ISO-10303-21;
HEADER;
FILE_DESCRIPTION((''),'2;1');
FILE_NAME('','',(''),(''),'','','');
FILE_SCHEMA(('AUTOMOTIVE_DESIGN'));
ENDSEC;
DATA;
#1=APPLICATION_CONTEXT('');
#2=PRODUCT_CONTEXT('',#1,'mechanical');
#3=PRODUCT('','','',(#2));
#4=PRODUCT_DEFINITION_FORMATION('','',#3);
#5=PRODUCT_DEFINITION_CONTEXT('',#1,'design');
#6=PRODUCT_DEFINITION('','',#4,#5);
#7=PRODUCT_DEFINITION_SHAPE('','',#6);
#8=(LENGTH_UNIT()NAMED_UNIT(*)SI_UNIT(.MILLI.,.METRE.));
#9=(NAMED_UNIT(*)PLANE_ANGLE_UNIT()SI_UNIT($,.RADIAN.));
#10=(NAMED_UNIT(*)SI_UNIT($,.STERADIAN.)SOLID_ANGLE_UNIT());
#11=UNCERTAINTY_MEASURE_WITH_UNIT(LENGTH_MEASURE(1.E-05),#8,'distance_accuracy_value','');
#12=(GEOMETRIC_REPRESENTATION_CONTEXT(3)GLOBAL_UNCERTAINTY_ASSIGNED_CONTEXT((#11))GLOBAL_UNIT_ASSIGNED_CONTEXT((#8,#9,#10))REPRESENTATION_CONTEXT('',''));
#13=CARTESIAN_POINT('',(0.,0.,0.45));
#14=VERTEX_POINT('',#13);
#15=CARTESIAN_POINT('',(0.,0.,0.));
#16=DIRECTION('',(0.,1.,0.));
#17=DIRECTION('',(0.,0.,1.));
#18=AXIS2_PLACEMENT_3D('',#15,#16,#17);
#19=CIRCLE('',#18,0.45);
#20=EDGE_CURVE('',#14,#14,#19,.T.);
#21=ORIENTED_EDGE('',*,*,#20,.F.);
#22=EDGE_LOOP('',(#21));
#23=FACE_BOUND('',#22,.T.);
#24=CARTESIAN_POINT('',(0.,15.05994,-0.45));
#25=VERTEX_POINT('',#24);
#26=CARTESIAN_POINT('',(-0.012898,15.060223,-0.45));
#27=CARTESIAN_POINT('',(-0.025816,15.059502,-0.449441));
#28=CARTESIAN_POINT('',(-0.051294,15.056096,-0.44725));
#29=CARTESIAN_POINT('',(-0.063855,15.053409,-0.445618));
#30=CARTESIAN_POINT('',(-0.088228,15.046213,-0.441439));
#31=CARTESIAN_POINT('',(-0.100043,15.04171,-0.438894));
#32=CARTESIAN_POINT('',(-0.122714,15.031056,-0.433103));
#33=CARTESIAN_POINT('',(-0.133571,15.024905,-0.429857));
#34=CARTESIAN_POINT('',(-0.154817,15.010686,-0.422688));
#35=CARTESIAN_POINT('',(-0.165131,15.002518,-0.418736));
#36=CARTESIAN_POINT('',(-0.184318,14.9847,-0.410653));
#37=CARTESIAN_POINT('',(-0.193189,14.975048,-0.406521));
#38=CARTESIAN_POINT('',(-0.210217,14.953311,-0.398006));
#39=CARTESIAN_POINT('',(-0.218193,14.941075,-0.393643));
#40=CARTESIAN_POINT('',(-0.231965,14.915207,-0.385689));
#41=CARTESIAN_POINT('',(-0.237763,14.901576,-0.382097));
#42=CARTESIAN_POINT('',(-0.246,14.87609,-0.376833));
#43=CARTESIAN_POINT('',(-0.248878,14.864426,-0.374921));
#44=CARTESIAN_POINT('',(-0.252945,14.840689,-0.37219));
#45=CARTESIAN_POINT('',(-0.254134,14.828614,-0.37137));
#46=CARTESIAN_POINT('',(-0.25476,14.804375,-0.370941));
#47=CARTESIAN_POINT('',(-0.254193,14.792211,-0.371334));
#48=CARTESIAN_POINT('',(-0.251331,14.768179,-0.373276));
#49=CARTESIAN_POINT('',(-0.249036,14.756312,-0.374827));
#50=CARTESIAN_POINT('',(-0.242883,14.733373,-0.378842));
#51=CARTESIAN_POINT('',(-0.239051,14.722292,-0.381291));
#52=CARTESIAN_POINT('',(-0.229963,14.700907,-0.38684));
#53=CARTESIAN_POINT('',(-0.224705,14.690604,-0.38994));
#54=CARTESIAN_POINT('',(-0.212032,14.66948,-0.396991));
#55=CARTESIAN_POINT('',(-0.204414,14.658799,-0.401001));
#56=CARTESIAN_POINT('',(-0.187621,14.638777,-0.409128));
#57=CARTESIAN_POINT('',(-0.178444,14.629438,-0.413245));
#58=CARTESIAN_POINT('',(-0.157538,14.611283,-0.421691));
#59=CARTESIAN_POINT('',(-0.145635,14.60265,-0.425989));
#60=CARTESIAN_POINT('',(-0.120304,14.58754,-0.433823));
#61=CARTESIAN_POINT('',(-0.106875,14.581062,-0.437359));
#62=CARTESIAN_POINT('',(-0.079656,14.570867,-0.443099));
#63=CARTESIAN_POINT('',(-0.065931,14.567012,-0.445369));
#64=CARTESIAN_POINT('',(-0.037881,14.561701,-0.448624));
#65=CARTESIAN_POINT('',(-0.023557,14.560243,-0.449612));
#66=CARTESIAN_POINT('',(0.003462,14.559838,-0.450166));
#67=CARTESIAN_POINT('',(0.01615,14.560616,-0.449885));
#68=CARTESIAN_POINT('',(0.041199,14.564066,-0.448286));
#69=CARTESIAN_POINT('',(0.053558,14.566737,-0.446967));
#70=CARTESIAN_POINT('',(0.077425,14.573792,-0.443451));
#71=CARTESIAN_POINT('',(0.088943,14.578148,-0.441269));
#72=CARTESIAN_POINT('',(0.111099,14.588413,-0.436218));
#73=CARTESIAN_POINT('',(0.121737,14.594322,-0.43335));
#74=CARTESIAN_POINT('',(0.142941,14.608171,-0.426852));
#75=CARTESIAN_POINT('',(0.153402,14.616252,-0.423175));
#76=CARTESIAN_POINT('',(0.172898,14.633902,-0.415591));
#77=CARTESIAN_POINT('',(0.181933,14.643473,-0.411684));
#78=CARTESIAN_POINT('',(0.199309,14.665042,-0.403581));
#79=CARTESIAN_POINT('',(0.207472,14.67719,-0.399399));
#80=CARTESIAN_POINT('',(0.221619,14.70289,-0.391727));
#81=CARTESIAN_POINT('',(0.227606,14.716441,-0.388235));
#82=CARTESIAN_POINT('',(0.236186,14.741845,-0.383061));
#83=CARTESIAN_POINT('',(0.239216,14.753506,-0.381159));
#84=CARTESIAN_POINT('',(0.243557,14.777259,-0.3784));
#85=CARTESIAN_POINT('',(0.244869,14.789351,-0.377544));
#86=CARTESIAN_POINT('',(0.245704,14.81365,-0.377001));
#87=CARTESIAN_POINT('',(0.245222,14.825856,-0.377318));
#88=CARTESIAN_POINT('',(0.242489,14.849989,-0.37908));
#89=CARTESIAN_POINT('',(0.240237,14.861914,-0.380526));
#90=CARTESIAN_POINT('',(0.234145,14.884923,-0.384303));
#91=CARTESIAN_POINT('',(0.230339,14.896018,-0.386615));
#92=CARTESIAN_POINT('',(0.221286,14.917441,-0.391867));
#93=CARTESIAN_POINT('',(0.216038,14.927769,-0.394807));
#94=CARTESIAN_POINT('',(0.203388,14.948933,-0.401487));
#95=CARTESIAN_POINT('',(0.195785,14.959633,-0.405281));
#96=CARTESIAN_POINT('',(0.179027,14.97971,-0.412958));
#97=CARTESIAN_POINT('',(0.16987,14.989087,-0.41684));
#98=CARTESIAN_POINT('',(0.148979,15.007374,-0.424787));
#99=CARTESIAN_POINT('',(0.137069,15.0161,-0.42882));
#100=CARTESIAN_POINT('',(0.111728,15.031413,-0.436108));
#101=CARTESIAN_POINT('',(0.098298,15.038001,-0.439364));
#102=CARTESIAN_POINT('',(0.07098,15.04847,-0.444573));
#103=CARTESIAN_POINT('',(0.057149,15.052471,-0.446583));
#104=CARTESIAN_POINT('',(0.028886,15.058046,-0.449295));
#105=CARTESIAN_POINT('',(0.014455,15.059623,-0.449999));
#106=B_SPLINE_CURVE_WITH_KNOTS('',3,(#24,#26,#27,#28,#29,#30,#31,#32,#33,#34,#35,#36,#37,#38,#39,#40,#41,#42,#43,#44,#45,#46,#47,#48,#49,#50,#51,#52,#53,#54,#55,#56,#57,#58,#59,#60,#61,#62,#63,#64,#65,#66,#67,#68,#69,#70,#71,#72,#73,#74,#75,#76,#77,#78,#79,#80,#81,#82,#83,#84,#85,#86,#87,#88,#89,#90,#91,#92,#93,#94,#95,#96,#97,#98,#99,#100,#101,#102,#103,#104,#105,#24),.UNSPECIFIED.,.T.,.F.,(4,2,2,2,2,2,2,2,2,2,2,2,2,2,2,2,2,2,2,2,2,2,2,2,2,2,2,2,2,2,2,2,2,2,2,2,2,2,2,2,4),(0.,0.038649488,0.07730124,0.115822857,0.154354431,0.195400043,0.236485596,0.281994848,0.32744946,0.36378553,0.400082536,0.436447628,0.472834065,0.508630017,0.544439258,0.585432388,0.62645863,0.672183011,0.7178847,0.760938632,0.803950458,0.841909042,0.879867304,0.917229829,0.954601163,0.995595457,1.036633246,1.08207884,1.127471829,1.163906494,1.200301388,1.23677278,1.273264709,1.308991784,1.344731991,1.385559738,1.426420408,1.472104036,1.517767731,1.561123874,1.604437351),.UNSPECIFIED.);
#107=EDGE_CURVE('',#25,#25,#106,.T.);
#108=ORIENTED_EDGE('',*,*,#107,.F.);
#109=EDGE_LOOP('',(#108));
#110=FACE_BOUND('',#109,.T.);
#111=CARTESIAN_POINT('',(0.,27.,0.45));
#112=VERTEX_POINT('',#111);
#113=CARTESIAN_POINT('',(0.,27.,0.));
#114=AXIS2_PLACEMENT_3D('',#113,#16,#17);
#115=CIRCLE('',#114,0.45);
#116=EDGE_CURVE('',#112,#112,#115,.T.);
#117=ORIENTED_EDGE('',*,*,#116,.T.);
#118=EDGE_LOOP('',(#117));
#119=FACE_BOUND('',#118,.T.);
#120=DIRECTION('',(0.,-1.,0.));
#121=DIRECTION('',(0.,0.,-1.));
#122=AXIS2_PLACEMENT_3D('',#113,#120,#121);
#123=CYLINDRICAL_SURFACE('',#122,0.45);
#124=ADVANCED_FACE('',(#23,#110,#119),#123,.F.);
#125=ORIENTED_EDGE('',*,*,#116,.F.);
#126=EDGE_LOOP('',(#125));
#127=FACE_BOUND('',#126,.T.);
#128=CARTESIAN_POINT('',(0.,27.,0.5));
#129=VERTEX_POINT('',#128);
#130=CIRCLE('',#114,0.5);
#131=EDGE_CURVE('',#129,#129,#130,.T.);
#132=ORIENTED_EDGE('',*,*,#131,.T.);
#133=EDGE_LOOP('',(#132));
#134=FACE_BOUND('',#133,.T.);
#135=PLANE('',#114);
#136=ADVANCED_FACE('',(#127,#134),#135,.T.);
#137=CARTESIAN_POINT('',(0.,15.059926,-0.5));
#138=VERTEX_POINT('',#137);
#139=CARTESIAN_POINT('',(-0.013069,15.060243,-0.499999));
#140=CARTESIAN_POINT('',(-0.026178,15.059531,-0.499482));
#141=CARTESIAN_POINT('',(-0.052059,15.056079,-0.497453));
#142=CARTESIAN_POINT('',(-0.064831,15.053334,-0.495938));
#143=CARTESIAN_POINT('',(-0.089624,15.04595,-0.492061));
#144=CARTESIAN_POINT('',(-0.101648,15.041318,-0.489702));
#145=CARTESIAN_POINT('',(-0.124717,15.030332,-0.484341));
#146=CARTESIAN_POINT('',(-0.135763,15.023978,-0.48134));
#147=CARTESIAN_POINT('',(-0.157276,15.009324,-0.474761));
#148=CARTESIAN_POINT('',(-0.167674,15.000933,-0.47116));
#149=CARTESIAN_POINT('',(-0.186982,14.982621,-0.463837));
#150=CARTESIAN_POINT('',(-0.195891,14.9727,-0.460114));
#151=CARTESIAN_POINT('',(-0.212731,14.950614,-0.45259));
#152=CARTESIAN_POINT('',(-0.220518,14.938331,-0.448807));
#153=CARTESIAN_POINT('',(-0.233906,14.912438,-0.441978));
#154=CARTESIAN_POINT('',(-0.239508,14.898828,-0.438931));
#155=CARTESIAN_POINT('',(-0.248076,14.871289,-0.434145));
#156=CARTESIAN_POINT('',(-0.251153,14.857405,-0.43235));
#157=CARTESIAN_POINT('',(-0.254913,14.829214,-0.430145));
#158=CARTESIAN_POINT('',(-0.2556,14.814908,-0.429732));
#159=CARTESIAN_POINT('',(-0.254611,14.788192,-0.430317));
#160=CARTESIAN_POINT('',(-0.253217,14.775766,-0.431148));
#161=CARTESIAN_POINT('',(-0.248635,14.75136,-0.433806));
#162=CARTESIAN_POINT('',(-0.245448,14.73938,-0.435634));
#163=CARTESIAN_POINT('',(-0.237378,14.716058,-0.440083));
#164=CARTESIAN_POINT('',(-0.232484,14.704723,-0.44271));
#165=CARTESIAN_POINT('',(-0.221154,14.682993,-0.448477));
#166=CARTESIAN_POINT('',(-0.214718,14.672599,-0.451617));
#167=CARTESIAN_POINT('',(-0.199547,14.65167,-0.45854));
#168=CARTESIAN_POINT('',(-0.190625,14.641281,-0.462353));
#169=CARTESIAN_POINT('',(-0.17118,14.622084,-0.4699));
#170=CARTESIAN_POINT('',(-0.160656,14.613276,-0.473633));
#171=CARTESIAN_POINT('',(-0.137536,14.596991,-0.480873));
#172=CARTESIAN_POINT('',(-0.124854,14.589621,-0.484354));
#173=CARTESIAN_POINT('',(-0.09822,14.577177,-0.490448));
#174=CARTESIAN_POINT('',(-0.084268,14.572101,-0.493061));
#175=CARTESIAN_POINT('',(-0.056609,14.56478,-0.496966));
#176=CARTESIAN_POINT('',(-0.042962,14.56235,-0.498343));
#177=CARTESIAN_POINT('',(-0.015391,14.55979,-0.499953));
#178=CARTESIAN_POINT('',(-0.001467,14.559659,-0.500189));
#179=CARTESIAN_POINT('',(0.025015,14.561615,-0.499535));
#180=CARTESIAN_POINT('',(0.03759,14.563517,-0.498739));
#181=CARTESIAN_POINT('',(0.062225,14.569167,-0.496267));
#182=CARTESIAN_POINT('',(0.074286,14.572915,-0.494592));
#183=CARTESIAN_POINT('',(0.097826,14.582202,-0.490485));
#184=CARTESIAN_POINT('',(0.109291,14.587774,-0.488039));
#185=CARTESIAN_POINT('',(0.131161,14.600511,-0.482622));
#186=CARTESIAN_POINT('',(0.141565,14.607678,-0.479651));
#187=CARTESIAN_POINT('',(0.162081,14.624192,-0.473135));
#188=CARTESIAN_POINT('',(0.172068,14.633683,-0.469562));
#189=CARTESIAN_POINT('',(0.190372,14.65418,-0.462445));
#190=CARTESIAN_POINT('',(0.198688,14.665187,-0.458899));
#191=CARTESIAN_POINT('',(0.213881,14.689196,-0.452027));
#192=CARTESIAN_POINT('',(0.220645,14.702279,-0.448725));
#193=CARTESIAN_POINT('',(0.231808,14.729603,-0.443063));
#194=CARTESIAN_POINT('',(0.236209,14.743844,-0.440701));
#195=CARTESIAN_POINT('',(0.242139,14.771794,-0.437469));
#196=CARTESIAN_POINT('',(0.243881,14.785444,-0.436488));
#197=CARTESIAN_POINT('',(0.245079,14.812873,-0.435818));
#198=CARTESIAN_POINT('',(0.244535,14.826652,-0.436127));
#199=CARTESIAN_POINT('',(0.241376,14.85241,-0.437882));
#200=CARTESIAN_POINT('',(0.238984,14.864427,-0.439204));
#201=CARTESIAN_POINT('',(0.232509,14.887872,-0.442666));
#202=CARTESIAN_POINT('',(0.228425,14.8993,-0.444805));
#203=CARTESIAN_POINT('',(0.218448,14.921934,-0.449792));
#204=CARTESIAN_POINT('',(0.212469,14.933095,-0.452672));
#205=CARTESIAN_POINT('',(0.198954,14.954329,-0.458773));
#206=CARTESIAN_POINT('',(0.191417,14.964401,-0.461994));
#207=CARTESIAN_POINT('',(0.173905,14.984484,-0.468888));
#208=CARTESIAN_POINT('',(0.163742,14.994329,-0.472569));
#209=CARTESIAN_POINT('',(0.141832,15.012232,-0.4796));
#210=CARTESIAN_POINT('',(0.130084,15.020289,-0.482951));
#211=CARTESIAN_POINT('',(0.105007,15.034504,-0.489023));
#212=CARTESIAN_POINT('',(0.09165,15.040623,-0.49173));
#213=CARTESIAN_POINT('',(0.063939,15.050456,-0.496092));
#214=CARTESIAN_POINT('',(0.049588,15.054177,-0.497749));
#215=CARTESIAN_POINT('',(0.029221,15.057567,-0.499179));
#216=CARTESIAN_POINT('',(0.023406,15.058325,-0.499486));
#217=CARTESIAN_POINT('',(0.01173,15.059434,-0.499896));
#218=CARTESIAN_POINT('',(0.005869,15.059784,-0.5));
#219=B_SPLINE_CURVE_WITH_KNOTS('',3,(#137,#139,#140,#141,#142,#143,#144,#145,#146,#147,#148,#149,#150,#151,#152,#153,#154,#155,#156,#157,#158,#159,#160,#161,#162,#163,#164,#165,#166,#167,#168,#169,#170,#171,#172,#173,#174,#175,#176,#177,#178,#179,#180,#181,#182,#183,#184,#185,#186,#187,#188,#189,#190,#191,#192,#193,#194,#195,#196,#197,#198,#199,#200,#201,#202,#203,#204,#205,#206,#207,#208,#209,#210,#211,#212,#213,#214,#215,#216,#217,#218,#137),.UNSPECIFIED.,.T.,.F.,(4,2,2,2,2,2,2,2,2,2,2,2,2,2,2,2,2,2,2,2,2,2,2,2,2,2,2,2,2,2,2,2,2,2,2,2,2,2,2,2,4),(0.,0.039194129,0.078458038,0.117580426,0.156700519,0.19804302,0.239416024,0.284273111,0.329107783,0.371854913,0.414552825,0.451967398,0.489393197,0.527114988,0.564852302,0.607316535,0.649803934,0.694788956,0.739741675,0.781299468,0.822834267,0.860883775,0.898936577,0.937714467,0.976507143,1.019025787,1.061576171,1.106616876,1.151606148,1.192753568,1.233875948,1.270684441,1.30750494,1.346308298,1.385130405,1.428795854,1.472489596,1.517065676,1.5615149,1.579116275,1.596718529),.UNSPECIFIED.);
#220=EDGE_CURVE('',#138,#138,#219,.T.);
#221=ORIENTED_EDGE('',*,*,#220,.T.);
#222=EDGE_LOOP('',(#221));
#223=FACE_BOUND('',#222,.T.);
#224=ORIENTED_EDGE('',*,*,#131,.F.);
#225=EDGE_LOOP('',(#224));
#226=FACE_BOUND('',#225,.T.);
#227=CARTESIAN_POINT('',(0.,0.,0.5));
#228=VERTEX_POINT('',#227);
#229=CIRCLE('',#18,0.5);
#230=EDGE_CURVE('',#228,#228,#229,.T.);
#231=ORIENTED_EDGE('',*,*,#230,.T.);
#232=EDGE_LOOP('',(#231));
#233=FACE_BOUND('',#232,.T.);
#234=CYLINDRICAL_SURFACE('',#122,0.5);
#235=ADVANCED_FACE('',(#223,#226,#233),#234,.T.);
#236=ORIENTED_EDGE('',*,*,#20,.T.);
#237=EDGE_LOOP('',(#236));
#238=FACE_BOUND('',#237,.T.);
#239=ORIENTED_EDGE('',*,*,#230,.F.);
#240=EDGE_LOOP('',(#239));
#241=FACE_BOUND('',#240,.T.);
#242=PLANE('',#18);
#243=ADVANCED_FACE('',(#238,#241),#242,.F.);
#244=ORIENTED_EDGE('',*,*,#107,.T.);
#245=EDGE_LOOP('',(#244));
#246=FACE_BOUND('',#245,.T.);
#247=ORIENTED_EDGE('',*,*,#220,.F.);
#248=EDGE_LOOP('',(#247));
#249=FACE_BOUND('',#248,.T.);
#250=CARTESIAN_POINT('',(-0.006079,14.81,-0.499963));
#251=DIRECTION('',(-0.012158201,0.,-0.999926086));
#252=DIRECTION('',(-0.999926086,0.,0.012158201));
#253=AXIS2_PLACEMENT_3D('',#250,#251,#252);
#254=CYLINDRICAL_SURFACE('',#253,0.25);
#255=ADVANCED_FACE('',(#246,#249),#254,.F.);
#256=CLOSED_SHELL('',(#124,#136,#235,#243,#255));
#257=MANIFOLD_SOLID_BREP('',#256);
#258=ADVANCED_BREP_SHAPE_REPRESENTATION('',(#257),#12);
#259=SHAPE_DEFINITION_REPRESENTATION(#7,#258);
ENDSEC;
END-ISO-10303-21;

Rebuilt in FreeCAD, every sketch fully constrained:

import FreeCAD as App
import Part
import Sketcher

doc = App.newDocument("Part")
body = doc.addObject("PartDesign::Body", "Body")

# Sketch on XZ plane
sketch1 = doc.addObject("Sketcher::SketchObject", "Sketch")
body.addObject(sketch1)
sketch1.AttachmentSupport = (doc.XZ_Plane, [""])
sketch1.MapMode = "FlatFace"
sketch1.addGeometry(Part.Circle(App.Vector(0, 0, 0), App.Vector(0, 0, 1), 0.5), False)
sketch1.addGeometry(Part.Circle(App.Vector(0, 0, 0), App.Vector(0, 0, 1), 0.45), False)
sketch1.addConstraint(Sketcher.Constraint("Coincident", 0, 3, -1, 1))
sketch1.addConstraint(Sketcher.Constraint("Coincident", 1, 3, -1, 1))
sketch1.addConstraint(Sketcher.Constraint("Diameter", 0, 1.0))
sketch1.addConstraint(Sketcher.Constraint("Diameter", 1, 0.9))
pad1 = doc.addObject("PartDesign::Pad", "Pad")
body.addObject(pad1)
pad1.Profile = sketch1
pad1.Length = 27
pad1.Reversed = True

# Sketch on an angled plane
sketch2 = doc.addObject("Sketcher::SketchObject", "Sketch001")
body.addObject(sketch2)
sketch2.Placement = App.Placement(App.Vector(-0.006079, 14.81, -0.499963), App.Rotation(App.Vector(-0.999926086, 0, 0.012158201), App.Vector(0, 0.999999999, 0), App.Vector(-0.012158201, 0, -0.999926086), "ZXY"))
sketch2.addGeometry(Part.Circle(App.Vector(0, 0, 0), App.Vector(0, 0, 1), 0.25), False)
sketch2.addConstraint(Sketcher.Constraint("Coincident", 0, 3, -1, 1))
sketch2.addConstraint(Sketcher.Constraint("Diameter", 0, 0.5))
pocket1 = doc.addObject("PartDesign::Pocket", "Pocket")
body.addObject(pocket1)
pocket1.Profile = sketch2
pocket1.Type = "UpToFirst"

doc.recompute()
